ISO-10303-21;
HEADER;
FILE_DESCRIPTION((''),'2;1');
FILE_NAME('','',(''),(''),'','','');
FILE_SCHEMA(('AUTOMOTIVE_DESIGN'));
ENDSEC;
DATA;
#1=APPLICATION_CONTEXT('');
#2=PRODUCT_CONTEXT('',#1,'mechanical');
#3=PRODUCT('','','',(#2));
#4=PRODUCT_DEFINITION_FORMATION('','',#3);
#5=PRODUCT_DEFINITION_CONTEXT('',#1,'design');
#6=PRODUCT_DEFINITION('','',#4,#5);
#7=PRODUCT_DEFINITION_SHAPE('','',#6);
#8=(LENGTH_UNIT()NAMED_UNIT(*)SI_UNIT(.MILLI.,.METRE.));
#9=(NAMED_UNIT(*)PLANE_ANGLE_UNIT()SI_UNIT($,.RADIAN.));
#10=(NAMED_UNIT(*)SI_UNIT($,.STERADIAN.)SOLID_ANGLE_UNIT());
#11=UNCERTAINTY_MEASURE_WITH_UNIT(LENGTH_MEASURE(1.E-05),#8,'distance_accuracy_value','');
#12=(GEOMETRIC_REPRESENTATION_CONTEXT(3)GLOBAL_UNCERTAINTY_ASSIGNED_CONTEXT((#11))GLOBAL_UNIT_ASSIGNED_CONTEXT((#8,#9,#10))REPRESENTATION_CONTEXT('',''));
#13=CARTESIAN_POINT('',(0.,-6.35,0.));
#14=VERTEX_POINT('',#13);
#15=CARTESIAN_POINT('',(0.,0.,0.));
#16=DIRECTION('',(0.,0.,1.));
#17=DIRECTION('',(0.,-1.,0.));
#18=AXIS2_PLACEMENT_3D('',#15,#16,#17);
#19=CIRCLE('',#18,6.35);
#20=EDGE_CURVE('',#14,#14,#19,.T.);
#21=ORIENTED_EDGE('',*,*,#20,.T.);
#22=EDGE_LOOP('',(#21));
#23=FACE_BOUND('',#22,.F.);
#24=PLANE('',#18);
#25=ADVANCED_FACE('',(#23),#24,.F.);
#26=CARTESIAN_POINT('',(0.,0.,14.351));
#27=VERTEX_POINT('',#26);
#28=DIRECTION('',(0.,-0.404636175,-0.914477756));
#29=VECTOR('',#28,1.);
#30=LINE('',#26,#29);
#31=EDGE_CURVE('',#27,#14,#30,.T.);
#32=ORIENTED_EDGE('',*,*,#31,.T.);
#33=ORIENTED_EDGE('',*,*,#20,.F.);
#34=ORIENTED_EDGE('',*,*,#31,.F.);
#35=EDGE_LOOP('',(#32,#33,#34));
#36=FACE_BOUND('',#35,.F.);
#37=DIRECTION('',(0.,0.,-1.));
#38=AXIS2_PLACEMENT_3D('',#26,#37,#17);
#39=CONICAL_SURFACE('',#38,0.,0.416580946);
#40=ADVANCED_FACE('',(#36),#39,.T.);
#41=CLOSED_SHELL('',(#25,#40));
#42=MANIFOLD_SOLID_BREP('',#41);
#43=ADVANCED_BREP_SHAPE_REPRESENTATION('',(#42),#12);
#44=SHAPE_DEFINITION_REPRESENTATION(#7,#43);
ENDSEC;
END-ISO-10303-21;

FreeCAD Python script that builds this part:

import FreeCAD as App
import Part
import Sketcher
Q = App.Units.Quantity


def add_polygon(sketch, points):
    """Adds a closed chain of lines whose ends are joined by coincident constraints."""
    first, n = sketch.GeometryCount, len(points)
    for a, b in zip(points, points[1:] + points[:1]):
        sketch.addGeometry(Part.LineSegment(App.Vector(*a, 0), App.Vector(*b, 0)), False)
    for i in range(n):
        sketch.addConstraint(Sketcher.Constraint("Coincident", first + i, 2, first + (i + 1) % n, 1))

doc = App.newDocument("Part")
body = doc.addObject("PartDesign::Body", "Body")

# Sketch on YZ plane
sketch1 = body.newObject("Sketcher::SketchObject", "Sketch")
sketch1.AttachmentSupport = (doc.getObject("YZ_Plane"), [""])
sketch1.MapMode = "FlatFace"
add_polygon(sketch1, [(-6.35, 0), (0, 0), (0, 14.351)])  # lines 0-2
sketch1.addConstraint([
    Sketcher.Constraint("Horizontal", 0),
    Sketcher.Constraint("Vertical", 1),
    Sketcher.Constraint("Coincident", 0, 2, -1, 1),
    Sketcher.Constraint("DistanceX", 0, 1, 0, 2, Q("0.25 in")),
    Sketcher.Constraint("DistanceY", 1, 1, 1, 2, Q("0.565 in")),
])
revolution = body.newObject("PartDesign::Revolution", "Revolution")
revolution.Profile = sketch1
revolution.ReferenceAxis = (sketch1, ["V_Axis"])
revolution.Angle = 360

doc.recompute()
